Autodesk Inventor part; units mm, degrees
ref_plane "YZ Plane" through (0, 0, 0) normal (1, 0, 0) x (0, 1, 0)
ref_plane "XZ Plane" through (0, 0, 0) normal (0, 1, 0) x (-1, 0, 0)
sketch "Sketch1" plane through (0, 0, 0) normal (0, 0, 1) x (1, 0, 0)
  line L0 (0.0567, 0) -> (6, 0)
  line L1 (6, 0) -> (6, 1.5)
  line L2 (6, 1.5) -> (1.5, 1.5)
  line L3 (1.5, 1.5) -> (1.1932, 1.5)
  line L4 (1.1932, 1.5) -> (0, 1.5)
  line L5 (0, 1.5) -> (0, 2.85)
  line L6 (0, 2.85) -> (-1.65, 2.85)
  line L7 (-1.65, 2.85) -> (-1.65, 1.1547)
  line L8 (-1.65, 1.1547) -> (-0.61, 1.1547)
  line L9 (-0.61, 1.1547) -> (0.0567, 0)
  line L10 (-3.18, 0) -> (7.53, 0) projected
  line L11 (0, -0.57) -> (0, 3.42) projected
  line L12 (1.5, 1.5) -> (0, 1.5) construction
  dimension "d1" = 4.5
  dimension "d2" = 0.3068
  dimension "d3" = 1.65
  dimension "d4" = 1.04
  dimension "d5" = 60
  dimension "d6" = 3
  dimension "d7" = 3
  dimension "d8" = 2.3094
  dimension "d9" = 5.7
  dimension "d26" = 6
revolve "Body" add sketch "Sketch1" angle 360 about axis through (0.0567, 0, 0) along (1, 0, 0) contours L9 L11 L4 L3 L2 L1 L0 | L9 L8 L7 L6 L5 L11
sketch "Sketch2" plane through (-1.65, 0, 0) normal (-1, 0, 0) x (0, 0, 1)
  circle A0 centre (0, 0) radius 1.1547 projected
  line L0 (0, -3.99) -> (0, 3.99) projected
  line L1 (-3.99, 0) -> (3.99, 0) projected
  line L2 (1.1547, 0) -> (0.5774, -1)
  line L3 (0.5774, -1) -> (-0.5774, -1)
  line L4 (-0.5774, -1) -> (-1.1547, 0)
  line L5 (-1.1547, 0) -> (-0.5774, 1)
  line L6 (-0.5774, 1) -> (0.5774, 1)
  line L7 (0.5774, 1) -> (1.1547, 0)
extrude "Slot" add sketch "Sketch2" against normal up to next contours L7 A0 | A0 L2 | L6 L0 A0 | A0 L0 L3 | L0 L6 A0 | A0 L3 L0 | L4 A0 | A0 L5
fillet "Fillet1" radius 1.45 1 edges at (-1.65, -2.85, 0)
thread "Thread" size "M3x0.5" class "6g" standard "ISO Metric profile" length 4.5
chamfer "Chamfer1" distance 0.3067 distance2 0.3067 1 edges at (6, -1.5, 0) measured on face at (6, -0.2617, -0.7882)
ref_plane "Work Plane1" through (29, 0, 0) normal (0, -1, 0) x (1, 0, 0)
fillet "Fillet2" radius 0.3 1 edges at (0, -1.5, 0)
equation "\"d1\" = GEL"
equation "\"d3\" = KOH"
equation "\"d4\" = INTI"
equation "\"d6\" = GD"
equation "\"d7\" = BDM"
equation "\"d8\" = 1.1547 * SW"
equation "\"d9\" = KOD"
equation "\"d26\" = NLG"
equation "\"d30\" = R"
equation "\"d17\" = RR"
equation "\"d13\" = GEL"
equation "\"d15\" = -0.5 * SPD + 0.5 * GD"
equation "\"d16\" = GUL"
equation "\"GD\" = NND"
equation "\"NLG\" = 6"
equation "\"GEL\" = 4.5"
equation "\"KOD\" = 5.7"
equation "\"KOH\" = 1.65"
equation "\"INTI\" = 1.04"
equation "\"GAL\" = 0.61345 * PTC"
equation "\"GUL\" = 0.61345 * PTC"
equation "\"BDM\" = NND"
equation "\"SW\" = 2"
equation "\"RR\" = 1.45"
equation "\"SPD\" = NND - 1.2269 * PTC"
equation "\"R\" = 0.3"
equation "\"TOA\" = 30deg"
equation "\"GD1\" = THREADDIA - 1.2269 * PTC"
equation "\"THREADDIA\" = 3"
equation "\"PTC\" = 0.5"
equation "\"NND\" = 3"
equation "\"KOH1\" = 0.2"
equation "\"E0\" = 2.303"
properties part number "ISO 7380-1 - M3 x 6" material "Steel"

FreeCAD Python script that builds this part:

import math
import FreeCAD as App
import Part
import Sketcher
from FreeCAD import Vector
Q = App.Units.Quantity


def edges_at(feature, points):
    """Names of the edges that pass closest to the given points."""
    edges = feature.Shape.Edges
    near = lambda p: min(range(len(edges)), key=lambda i: edges[i].distToShape(Part.Vertex(*p))[0])
    return sorted({f"Edge{near(p) + 1}" for p in points})


def add_polygon(sketch, points):
    """Adds a closed chain of lines whose ends are joined by coincident constraints."""
    first, n = sketch.GeometryCount, len(points)
    for a, b in zip(points, points[1:] + points[:1]):
        sketch.addGeometry(Part.LineSegment(App.Vector(*a, 0), App.Vector(*b, 0)), False)
    for i in range(n):
        sketch.addConstraint(Sketcher.Constraint("Coincident", first + i, 2, first + (i + 1) % n, 1))

doc = App.newDocument("Part")
body = doc.addObject("PartDesign::Body", "Body")

sketch1 = doc.addObject("Sketcher::SketchObject", "Sketch")
body.addObject(sketch1)
sketch1.AttachmentSupport = (doc.XY_Plane, [""])
sketch1.MapMode = "FlatFace"
add_polygon(sketch1, [(0.1, 0), (6, 0), (6, 1.5), (0, 1.5), (0, 2.9), (-1.6, 2.9), (-1.6, 1.2), (-0.6, 1.2)])
sketch1.addConstraint([
    Sketcher.Constraint("Horizontal", 0),
    Sketcher.Constraint("Vertical", 1),
    Sketcher.Constraint("Horizontal", 2),
    Sketcher.Constraint("Vertical", 3),
    Sketcher.Constraint("Horizontal", 4),
    Sketcher.Constraint("Vertical", 5),
    Sketcher.Constraint("Horizontal", 6),
    Sketcher.Constraint("PointOnObject", 0, 2, -1),
    Sketcher.Constraint("PointOnObject", 2, 2, -2),
    Sketcher.Constraint("DistanceX", 2, 2, 2, 1, Q("6 mm")),
    Sketcher.Constraint("DistanceX", 4, 2, 4, 1, Q("1.65 mm")),
    Sketcher.Constraint("DistanceX", 6, 1, 6, 2, Q("1.04 mm")),
    Sketcher.Constraint("DistanceY", 1, 1, 1, 2, Q("1.5 mm")),
    Sketcher.Constraint("DistanceY", 3, 1, 3, 2, Q("1.35 mm")),
    Sketcher.Constraint("DistanceX", 0, 1, 0, 2, Q("5.9433 mm")),
    Sketcher.Constraint("DistanceY", 5, 2, 5, 1, Q("1.6953 mm")),
])
revolution = doc.addObject("PartDesign::Revolution", "Revolution")
body.addObject(revolution)
revolution.Profile = sketch1
revolution.ReferenceAxis = (sketch1, ["H_Axis"])
revolution.Angle = 360

sketch2 = doc.addObject("Sketcher::SketchObject", "Sketch001")
body.addObject(sketch2)
sketch2.AttachmentSupport = (doc.YZ_Plane, [""])
sketch2.MapMode = "FlatFace"
sketch2.AttachmentOffset = App.Placement(Vector(0, 0, -1.65), App.Rotation())
sketch2.addGeometry([
    Part.LineSegment(Vector(1, 0.6, 0), Vector(0, 1.2, 0)),
    Part.ArcOfCircle(Part.Circle(Vector(0, 0, 0), Vector(0, 0, 1), 1.2), math.radians(30), math.radians(90)),
    Part.ArcOfCircle(Part.Circle(Vector(0, 0, 0), Vector(0, 0, 1), 1.2), math.radians(90), math.radians(150)),
    Part.LineSegment(Vector(0, 1.2, 0), Vector(-1, 0.6, 0)),
    Part.ArcOfCircle(Part.Circle(Vector(0, 0, 0), Vector(0, 0, 1), 1.2), math.radians(-30), math.radians(30)),
    Part.LineSegment(Vector(1, 0.6, 0), Vector(1, -0.6, 0)),
    Part.LineSegment(Vector(-1, 0.6, 0), Vector(-1, -0.6, 0)),
    Part.ArcOfCircle(Part.Circle(Vector(0, 0, 0), Vector(0, 0, 1), 1.2), math.radians(150), math.radians(210)),
    Part.LineSegment(Vector(-1, -0.6, 0), Vector(0, -1.2, 0)),
    Part.ArcOfCircle(Part.Circle(Vector(0, 0, 0), Vector(0, 0, 1), 1.2), math.radians(-150), math.radians(-90)),
    Part.ArcOfCircle(Part.Circle(Vector(0, 0, 0), Vector(0, 0, 1), 1.2), math.radians(-90), math.radians(-30)),
    Part.LineSegment(Vector(0, -1.2, 0), Vector(1, -0.6, 0)),
], False)
sketch2.addConstraint([
    Sketcher.Constraint("Coincident", 0, 1, 1, 1),
    Sketcher.Constraint("Coincident", 1, 2, 0, 2),
    Sketcher.Constraint("Coincident", 2, 1, 3, 1),
    Sketcher.Constraint("Coincident", 3, 2, 2, 2),
    Sketcher.Constraint("Coincident", 4, 1, 5, 2),
    Sketcher.Constraint("Coincident", 5, 1, 4, 2),
    Sketcher.Constraint("Coincident", 6, 1, 7, 1),
    Sketcher.Constraint("Coincident", 7, 2, 6, 2),
    Sketcher.Constraint("Coincident", 8, 1, 9, 1),
    Sketcher.Constraint("Coincident", 9, 2, 8, 2),
    Sketcher.Constraint("Coincident", 10, 1, 11, 1),
    Sketcher.Constraint("Coincident", 11, 2, 10, 2),
    Sketcher.Constraint("Vertical", 5),
    Sketcher.Constraint("Vertical", 6),
    Sketcher.Constraint("Coincident", 1, 3, -1, 1),
    Sketcher.Constraint("Coincident", 2, 3, -1, 1),
    Sketcher.Constraint("Coincident", 4, 3, -1, 1),
    Sketcher.Constraint("Coincident", 7, 3, -1, 1),
    Sketcher.Constraint("Coincident", 9, 3, -1, 1),
    Sketcher.Constraint("Coincident", 10, 3, -1, 1),
    Sketcher.Constraint("Coincident", 2, 1, 1, 2),
    Sketcher.Constraint("Coincident", 5, 1, 0, 1),
    Sketcher.Constraint("Coincident", 6, 1, 3, 2),
    Sketcher.Constraint("Coincident", 8, 1, 7, 2),
    Sketcher.Constraint("Coincident", 10, 1, 9, 2),
    Sketcher.Constraint("PointOnObject", 1, 2, -2),
    Sketcher.Constraint("PointOnObject", 9, 2, -2),
    Sketcher.Constraint("Parallel", 0, 8),
    Sketcher.Constraint("Parallel", 3, 11),
    Sketcher.Constraint("DistanceX", -1, 1, 0, 1, Q("1 mm")),
    Sketcher.Constraint("Radius", 1, Q("1.1547 mm")),
])
pad1 = doc.addObject("PartDesign::Pad", "Pad")
body.addObject(pad1)
pad1.Profile = sketch2
pad1.Length = 1.1293
doc.recompute()

fillet = doc.addObject("PartDesign::Fillet", "Fillet")
body.addObject(fillet)
fillet.Base = (pad1, edges_at(pad1, [(-1.65, -2.85, 0)]))
fillet.Radius = 1.45
doc.recompute()

chamfer = doc.addObject("PartDesign::Chamfer", "Chamfer")
body.addObject(chamfer)
chamfer.Base = (fillet, edges_at(fillet, [(6, -1.5, 0)]))
chamfer.ChamferType = "Two distances"
chamfer.Size = 0.3067
chamfer.Size2 = 0.3067
doc.recompute()

fillet2 = doc.addObject("PartDesign::Fillet", "Fillet001")
body.addObject(fillet2)
fillet2.Base = (chamfer, edges_at(chamfer, [(0, -1.5, 0)]))
fillet2.Radius = 0.3

doc.recompute()
